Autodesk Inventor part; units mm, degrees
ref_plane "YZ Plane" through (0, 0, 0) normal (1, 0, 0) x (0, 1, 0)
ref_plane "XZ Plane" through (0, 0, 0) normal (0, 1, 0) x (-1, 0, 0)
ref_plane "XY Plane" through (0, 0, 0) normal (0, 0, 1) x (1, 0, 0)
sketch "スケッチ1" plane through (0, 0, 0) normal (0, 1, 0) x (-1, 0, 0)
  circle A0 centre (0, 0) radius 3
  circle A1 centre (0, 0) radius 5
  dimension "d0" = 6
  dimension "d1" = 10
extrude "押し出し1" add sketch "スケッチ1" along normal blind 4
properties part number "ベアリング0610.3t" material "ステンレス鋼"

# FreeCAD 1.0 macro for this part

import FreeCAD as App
import Part
import Sketcher

V = App.Vector

doc = App.newDocument("Part")
params = doc.addObject("Spreadsheet::Sheet", "Params")
for row, (alias, value) in enumerate([
    ("sketch1_diameter", "10 mm"),
    ("sketch1_diameter2", "6 mm"),
    ("pad1_length", "4 mm"),
], start=1):
    params.set(f"A{row}", alias)
    params.set(f"B{row}", "=" + value)
    params.setAlias(f"B{row}", alias)

body = doc.addObject("PartDesign::Body", "Body")

# Sketch on XZ plane
sketch1 = doc.addObject("Sketcher::SketchObject", "Sketch")
body.addObject(sketch1)
sketch1.AttachmentSupport = (doc.XZ_Plane, [""])
sketch1.MapMode = "FlatFace"
sketch1.addGeometry([
    Part.Circle(V(0, 0, 0), V(0, 0, 1), 5),
    Part.Circle(V(0, 0, 0), V(0, 0, 1), 3),
], False)
sketch1.addConstraint([
    Sketcher.Constraint("Coincident", 0, 3, -1, 1),
    Sketcher.Constraint("Coincident", 1, 3, -1, 1),
    Sketcher.Constraint("Diameter", 0, 10.0),
    Sketcher.Constraint("Diameter", 1, 6.0),
])
sketch1.setExpression("Constraints[2]", "Params.sketch1_diameter")
sketch1.setExpression("Constraints[3]", "Params.sketch1_diameter2")
pad1 = doc.addObject("PartDesign::Pad", "Pad")
body.addObject(pad1)
pad1.Profile = sketch1
pad1.setExpression("Length", "Params.pad1_length")
pad1.Reversed = True

doc.recompute()
